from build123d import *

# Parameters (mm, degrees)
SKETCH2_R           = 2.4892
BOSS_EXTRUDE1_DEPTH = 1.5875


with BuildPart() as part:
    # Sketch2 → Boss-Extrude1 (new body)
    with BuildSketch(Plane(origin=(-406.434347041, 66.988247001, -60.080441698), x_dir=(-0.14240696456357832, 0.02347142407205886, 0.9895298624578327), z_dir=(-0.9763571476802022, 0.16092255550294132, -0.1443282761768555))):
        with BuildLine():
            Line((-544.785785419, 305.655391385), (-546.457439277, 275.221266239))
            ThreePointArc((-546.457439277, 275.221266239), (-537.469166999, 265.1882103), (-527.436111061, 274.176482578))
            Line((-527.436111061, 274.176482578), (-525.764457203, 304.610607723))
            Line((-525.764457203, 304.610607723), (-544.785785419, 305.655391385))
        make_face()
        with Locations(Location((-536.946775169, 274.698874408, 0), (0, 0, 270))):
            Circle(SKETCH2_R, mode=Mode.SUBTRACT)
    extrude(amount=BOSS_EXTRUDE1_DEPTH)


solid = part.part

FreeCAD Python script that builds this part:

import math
import FreeCAD as App
import Part
import Sketcher
Q = App.Units.Quantity

doc = App.newDocument("Part")
body = doc.addObject("PartDesign::Body", "Body")

sketch1 = doc.addObject("Sketcher::SketchObject", "Sketch")
body.addObject(sketch1)
sketch1.Placement = App.Placement(App.Vector(-406.434347, 66.988247, -60.080442), App.Rotation(App.Vector(-0.142406965, 0.023471424, 0.989529862), App.Vector(0.162625265, 0.986687906, 0), App.Vector(-0.976357148, 0.160922556, -0.144328276), "ZXY"))
sketch1.addGeometry(Part.LineSegment(App.Vector(-544.8, 305.7, 0), App.Vector(-546.5, 275.2, 0)), False)
sketch1.addGeometry(Part.ArcOfCircle(Part.Circle(App.Vector(-536.9, 274.7, 0), App.Vector(0, 0, 1), 9.5), math.radians(177), math.radians(357)), False)
sketch1.addGeometry(Part.LineSegment(App.Vector(-527.4, 274.2, 0), App.Vector(-525.8, 304.6, 0)), False)
sketch1.addGeometry(Part.LineSegment(App.Vector(-525.8, 304.6, 0), App.Vector(-544.8, 305.7, 0)), False)
sketch1.addGeometry(Part.Circle(App.Vector(-536.9, 274.7, 0), App.Vector(0, 0, 1), 2.5), False)
sketch1.addConstraint(Sketcher.Constraint("Tangent", 0, 2, 1, 1))
sketch1.addConstraint(Sketcher.Constraint("Tangent", 1, 2, 2, 1))
sketch1.addConstraint(Sketcher.Constraint("Coincident", 2, 2, 3, 1))
sketch1.addConstraint(Sketcher.Constraint("Coincident", 3, 2, 0, 1))
sketch1.addConstraint(Sketcher.Constraint("Coincident", 4, 3, 1, 3))
sketch1.addConstraint(Sketcher.Constraint("Parallel", 0, 2))
sketch1.addConstraint(Sketcher.Constraint("Perpendicular", 2, 3))
sketch1.addConstraint(Sketcher.Constraint("Diameter", 4, Q("0.196 in")))
sketch1.addConstraint(Sketcher.Constraint("Radius", 1, Q("0.375 in")))
sketch1.addConstraint(Sketcher.Constraint("Distance", 0, Q("1.2 in")))
sketch1.addConstraint(Sketcher.Constraint("DistanceX", 0, 2, -1, 1, Q("546.457439 mm")))
sketch1.addConstraint(Sketcher.Constraint("DistanceX", 1, 2, -1, 1, Q("527.436111 mm")))
sketch1.addConstraint(Sketcher.Constraint("DistanceY", -1, 1, 3, 2, Q("305.655391 mm")))
pad1 = doc.addObject("PartDesign::Pad", "Pad")
body.addObject(pad1)
pad1.Profile = sketch1
pad1.Length = Q("0.0625 in")

doc.recompute()
